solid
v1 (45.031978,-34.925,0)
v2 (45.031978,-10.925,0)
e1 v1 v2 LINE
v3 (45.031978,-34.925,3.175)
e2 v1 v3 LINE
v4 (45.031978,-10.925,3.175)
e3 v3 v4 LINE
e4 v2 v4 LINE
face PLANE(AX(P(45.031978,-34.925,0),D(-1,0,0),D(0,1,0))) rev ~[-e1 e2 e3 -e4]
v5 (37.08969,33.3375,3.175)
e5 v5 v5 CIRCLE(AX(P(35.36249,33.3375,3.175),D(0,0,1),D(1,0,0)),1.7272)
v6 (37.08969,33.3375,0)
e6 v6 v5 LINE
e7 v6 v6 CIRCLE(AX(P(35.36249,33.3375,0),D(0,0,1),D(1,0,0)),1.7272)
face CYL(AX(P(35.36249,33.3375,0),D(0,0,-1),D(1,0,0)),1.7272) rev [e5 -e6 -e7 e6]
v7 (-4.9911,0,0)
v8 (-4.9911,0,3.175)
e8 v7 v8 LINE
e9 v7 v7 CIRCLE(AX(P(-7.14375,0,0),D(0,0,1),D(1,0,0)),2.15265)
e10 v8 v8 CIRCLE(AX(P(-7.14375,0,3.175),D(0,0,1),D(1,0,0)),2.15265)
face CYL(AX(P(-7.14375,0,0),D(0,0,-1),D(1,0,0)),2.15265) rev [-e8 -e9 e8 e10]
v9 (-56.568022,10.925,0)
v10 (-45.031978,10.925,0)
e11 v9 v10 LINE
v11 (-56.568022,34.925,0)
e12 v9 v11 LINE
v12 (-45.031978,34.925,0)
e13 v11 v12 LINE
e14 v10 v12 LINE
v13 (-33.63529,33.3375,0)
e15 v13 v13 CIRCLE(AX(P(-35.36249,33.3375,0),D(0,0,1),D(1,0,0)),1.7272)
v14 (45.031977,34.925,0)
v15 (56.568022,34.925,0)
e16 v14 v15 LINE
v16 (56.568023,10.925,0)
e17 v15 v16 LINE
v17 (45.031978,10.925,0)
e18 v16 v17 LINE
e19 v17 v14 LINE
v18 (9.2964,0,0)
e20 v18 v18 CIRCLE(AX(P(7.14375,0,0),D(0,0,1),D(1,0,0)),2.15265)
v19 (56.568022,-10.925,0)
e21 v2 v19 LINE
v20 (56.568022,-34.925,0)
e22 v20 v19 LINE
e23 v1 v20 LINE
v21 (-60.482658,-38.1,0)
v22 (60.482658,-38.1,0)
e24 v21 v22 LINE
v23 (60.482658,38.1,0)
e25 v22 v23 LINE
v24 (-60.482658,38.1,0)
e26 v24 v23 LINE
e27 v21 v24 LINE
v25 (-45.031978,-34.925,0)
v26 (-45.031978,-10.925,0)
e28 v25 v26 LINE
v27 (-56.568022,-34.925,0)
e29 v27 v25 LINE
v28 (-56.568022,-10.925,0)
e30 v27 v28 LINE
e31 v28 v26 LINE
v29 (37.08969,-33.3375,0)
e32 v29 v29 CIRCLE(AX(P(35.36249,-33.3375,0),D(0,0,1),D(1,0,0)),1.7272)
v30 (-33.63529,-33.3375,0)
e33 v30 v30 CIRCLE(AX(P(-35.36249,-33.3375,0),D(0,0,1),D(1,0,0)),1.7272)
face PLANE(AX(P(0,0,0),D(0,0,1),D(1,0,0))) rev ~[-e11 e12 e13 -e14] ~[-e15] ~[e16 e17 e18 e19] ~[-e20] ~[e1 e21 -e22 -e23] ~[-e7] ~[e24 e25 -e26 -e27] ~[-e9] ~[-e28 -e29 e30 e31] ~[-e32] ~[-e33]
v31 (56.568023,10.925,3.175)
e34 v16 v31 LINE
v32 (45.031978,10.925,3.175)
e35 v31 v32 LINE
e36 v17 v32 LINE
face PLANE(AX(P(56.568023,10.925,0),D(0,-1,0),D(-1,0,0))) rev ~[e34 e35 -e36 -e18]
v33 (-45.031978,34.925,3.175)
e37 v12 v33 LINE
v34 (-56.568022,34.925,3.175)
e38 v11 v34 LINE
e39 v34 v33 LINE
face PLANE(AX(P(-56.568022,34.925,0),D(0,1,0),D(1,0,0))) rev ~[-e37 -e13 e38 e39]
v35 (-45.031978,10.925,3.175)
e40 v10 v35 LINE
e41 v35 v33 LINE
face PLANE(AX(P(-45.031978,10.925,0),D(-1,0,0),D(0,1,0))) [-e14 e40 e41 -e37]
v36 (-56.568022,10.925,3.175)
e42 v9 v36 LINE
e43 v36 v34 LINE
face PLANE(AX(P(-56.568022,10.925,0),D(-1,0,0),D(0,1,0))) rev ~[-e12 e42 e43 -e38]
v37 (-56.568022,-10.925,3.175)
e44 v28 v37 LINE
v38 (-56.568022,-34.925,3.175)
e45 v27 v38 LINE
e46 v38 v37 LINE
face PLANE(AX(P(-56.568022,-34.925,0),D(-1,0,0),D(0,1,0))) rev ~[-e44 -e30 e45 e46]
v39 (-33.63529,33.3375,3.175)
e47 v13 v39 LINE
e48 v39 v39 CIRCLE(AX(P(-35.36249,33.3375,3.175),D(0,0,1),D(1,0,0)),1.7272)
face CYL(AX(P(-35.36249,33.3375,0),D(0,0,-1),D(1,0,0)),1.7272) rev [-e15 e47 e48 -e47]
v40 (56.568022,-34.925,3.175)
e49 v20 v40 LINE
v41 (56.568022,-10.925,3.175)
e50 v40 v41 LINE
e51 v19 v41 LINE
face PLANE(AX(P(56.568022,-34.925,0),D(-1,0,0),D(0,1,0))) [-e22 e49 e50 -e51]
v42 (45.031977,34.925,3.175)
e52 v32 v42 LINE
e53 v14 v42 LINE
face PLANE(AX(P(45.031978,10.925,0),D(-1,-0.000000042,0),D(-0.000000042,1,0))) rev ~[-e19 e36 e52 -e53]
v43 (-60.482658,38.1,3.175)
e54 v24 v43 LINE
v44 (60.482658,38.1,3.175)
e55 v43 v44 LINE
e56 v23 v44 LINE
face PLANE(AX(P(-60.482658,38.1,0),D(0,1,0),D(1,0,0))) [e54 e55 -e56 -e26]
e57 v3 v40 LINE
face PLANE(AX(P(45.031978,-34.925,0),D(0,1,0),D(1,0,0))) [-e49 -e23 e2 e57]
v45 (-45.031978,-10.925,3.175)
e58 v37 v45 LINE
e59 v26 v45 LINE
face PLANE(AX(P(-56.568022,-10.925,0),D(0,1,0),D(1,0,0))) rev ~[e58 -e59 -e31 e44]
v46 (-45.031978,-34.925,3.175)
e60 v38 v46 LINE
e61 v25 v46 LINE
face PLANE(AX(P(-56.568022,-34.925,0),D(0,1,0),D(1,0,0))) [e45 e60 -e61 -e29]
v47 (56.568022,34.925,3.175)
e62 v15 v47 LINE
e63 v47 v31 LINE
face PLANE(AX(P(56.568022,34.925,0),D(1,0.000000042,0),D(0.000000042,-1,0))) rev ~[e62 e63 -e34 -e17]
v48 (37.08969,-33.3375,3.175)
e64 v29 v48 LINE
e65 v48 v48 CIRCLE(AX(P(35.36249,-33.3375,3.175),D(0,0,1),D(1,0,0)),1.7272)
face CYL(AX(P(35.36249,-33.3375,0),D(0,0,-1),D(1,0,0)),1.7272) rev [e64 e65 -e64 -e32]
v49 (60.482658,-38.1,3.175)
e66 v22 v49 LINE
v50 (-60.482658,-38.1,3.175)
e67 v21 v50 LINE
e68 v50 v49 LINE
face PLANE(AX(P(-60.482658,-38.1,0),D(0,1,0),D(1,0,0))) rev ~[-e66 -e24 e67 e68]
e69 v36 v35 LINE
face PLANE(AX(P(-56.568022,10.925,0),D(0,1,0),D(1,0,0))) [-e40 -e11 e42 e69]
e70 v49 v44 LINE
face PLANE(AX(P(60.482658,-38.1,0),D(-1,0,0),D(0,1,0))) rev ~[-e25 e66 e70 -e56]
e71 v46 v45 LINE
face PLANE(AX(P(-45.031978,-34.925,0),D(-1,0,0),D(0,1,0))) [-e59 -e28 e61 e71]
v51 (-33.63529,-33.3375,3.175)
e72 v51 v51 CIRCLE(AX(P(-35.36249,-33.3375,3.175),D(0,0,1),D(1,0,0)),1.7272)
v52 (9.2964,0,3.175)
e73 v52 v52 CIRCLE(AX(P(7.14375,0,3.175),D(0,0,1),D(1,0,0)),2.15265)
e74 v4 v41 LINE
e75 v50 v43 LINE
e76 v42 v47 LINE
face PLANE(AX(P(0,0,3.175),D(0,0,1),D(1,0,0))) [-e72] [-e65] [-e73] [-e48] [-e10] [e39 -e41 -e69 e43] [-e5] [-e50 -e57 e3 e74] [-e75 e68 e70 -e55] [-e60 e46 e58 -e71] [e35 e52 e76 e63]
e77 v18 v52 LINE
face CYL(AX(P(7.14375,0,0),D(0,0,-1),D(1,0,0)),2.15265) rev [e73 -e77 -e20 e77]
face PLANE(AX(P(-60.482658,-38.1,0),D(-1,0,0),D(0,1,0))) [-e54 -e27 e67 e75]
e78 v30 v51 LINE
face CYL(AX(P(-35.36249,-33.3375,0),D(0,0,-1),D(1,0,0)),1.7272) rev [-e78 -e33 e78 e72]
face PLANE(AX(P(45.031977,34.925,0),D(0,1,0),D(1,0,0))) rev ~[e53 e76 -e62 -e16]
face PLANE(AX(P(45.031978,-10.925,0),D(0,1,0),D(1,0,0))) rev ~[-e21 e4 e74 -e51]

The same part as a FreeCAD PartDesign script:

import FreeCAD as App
import Part
import Sketcher

V = App.Vector
Q = App.Units.Quantity

doc = App.newDocument("Part")
body = doc.addObject("PartDesign::Body", "Body")

sketch1 = doc.addObject("Sketcher::SketchObject", "Sketch")
body.addObject(sketch1)
sketch1.AttachmentSupport = (doc.XY_Plane, [""])
sketch1.MapMode = "FlatFace"
sketch1.addGeometry([
    Part.LineSegment(V(-60.482658, 38.1, 0), V(-60.482658, -38.1, 0)),
    Part.LineSegment(V(-60.482658, -38.1, 0), V(60.482658, -38.1, 0)),
    Part.LineSegment(V(60.482658, -38.1, 0), V(60.482658, 38.1, 0)),
    Part.LineSegment(V(60.482658, 38.1, 0), V(-60.482658, 38.1, 0)),
    Part.Circle(V(-35.36249, -33.3375, 0), V(0, 0, 1), 1.7272),
    Part.LineSegment(V(-45.031978, -34.925, 0), V(-56.568022, -34.925, 0)),
    Part.LineSegment(V(-56.568022, -34.925, 0), V(-56.568022, -10.925, 0)),
    Part.LineSegment(V(-56.568022, -10.925, 0), V(-45.031978, -10.925, 0)),
    Part.LineSegment(V(-45.031978, -10.925, 0), V(-45.031978, -34.925, 0)),
    Part.Circle(V(35.36249, -33.3375, 0), V(0, 0, 1), 1.7272),
    Part.LineSegment(V(56.568022, -34.925, 0), V(45.031978, -34.925, 0)),
    Part.LineSegment(V(45.031978, -34.925, 0), V(45.031978, -10.925, 0)),
    Part.LineSegment(V(45.031978, -10.925, 0), V(56.568022, -10.925, 0)),
    Part.LineSegment(V(56.568022, -10.925, 0), V(56.568022, -34.925, 0)),
    Part.Circle(V(-7.14375, 0, 0), V(0, 0, 1), 2.15265),
    Part.LineSegment(V(-45.031978, 10.925, 0), V(-56.568022, 10.925, 0)),
    Part.LineSegment(V(-56.568022, 10.925, 0), V(-56.568022, 34.925, 0)),
    Part.LineSegment(V(-56.568022, 34.925, 0), V(-45.031978, 34.925, 0)),
    Part.LineSegment(V(-45.031978, 34.925, 0), V(-45.031978, 10.925, 0)),
    Part.Circle(V(-35.36249, 33.3375, 0), V(0, 0, 1), 1.7272),
    Part.Circle(V(7.14375, 0, 0), V(0, 0, 1), 2.15265),
    Part.LineSegment(V(45.031978, 10.925, 0), V(45.031977, 34.925, 0)),
    Part.LineSegment(V(45.031977, 34.925, 0), V(56.568022, 34.925, 0)),
    Part.LineSegment(V(56.568022, 34.925, 0), V(56.568023, 10.925, 0)),
    Part.LineSegment(V(56.568023, 10.925, 0), V(45.031978, 10.925, 0)),
    Part.Circle(V(35.36249, 33.3375, 0), V(0, 0, 1), 1.7272),
], False)
sketch1.addConstraint([
    Sketcher.Constraint("Coincident", 0, 2, 1, 1),
    Sketcher.Constraint("Coincident", 1, 2, 2, 1),
    Sketcher.Constraint("Coincident", 2, 2, 3, 1),
    Sketcher.Constraint("Coincident", 3, 2, 0, 1),
    Sketcher.Constraint("Coincident", 5, 2, 6, 1),
    Sketcher.Constraint("Coincident", 6, 2, 7, 1),
    Sketcher.Constraint("Coincident", 7, 2, 8, 1),
    Sketcher.Constraint("Coincident", 8, 2, 5, 1),
    Sketcher.Constraint("Coincident", 10, 2, 11, 1),
    Sketcher.Constraint("Coincident", 11, 2, 12, 1),
    Sketcher.Constraint("Coincident", 12, 2, 13, 1),
    Sketcher.Constraint("Coincident", 13, 2, 10, 1),
    Sketcher.Constraint("Coincident", 15, 2, 16, 1),
    Sketcher.Constraint("Coincident", 16, 2, 17, 1),
    Sketcher.Constraint("Coincident", 17, 2, 18, 1),
    Sketcher.Constraint("Coincident", 18, 2, 15, 1),
    Sketcher.Constraint("Coincident", 21, 2, 22, 1),
    Sketcher.Constraint("Coincident", 22, 2, 23, 1),
    Sketcher.Constraint("Coincident", 23, 2, 24, 1),
    Sketcher.Constraint("Coincident", 24, 2, 21, 1),
    Sketcher.Constraint("Vertical", 0),
    Sketcher.Constraint("Horizontal", 1),
    Sketcher.Constraint("Vertical", 2),
    Sketcher.Constraint("Horizontal", 3),
    Sketcher.Constraint("Horizontal", 5),
    Sketcher.Constraint("Vertical", 6),
    Sketcher.Constraint("Horizontal", 7),
    Sketcher.Constraint("Vertical", 8),
    Sketcher.Constraint("Horizontal", 10),
    Sketcher.Constraint("Vertical", 11),
    Sketcher.Constraint("Horizontal", 12),
    Sketcher.Constraint("Vertical", 13),
    Sketcher.Constraint("Horizontal", 15),
    Sketcher.Constraint("Vertical", 16),
    Sketcher.Constraint("Horizontal", 17),
    Sketcher.Constraint("Vertical", 18),
    Sketcher.Constraint("Vertical", 21),
    Sketcher.Constraint("Horizontal", 22),
    Sketcher.Constraint("Vertical", 23),
    Sketcher.Constraint("Horizontal", 24),
    Sketcher.Constraint("Equal", 4, 9),
    Sketcher.Constraint("Equal", 9, 19),
    Sketcher.Constraint("Equal", 14, 20),
    Sketcher.Constraint("Equal", 19, 25),
    Sketcher.Constraint("Symmetric", 9, 3, 19, 3, -1, 1),
    Sketcher.Constraint("Symmetric", 14, 3, 20, 3, -1, 1),
    Sketcher.Constraint("Symmetric", 4, 3, 25, 3, -1, 1),
    Sketcher.Constraint("Symmetric", 0, 2, 2, 2, -1, 1),
    Sketcher.Constraint("Symmetric", 12, 2, 15, 2, -1, 1),
    Sketcher.Constraint("Symmetric", 10, 2, 17, 2, -1, 1),
    Sketcher.Constraint("Symmetric", 8, 2, 21, 2, -1, 1),
    Sketcher.Constraint("Symmetric", 6, 2, 23, 2, -1, 1),
    Sketcher.Constraint("Symmetric", 4, 3, 9, 3, -2),
    Sketcher.Constraint("Symmetric", 8, 2, 10, 2, -2),
    Sketcher.Constraint("Symmetric", 6, 2, 12, 2, -2),
    Sketcher.Constraint("PointOnObject", 14, 3, -1),
    Sketcher.Constraint("DistanceY", 0, 2, 0, 1, Q("3 in")),
    Sketcher.Constraint("Diameter", 4, Q("0.136 in")),
    Sketcher.Constraint("Diameter", 14, Q("0.1695 in")),
    Sketcher.Constraint("DistanceY", 4, 3, -1, 1, Q("1.3125 in")),
    Sketcher.Constraint("DistanceX", 14, 3, -1, 1, Q("0.28125 in")),
    Sketcher.Constraint("DistanceY", 5, 2, -1, 1, Q("1.375 in")),
    Sketcher.Constraint("DistanceY", 6, 1, 6, 2, 24.0),
    Sketcher.Constraint("DistanceX", 1, 1, 1, 2, 120.965316),
    Sketcher.Constraint("DistanceX", 5, 2, 5, 1, 11.536045),
    Sketcher.Constraint("DistanceX", 4, 3, -1, 1, 35.36249),
    Sketcher.Constraint("DistanceX", -1, 1, 24, 2, 45.031978),
])
pad1 = doc.addObject("PartDesign::Pad", "Pad")
body.addObject(pad1)
pad1.Profile = sketch1
pad1.Length = Q("0.125 in")

doc.recompute()
